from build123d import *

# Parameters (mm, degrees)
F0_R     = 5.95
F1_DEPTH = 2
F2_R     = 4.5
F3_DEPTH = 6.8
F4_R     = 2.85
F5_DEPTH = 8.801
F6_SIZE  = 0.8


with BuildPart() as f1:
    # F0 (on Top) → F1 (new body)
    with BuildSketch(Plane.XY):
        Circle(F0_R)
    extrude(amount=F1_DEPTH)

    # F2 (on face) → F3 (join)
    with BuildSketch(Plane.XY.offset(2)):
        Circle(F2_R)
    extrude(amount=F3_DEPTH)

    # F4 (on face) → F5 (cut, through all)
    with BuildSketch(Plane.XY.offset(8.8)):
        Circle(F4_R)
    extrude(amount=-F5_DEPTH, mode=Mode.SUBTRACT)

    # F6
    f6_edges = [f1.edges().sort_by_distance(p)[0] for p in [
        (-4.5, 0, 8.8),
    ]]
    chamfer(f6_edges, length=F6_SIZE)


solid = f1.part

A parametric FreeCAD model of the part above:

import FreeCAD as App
import Part
import Sketcher
from FreeCAD import Vector


def edges_at(feature, points):
    """Names of the edges that pass closest to the given points."""
    edges = feature.Shape.Edges
    near = lambda p: min(range(len(edges)), key=lambda i: edges[i].distToShape(Part.Vertex(*p))[0])
    return sorted({f"Edge{near(p) + 1}" for p in points})

doc = App.newDocument("Part")
body = doc.addObject("PartDesign::Body", "Body")

# Sketch on XY plane
sketch1 = body.newObject("Sketcher::SketchObject", "Sketch")
sketch1.AttachmentSupport = (doc.getObject("XY_Plane"), [""])
sketch1.MapMode = "FlatFace"
sketch1.addGeometry(Part.Circle(Vector(0, 0, 0), Vector(0, 0, 1), 5.95), False)
sketch1.addConstraint([
    Sketcher.Constraint("Coincident", 0, 3, -1, 1),
    Sketcher.Constraint("Diameter", 0, 11.9),
])
pad1 = body.newObject("PartDesign::Pad", "Pad")
pad1.Profile = sketch1
pad1.Length = 2

# Sketch on XY plane
sketch2 = body.newObject("Sketcher::SketchObject", "Sketch001")
sketch2.AttachmentSupport = (doc.getObject("XY_Plane"), [""])
sketch2.MapMode = "FlatFace"
sketch2.AttachmentOffset = App.Placement(Vector(0, 0, 2), App.Rotation())
sketch2.addGeometry(Part.Circle(Vector(0, 0, 0), Vector(0, 0, 1), 4.5), False)
sketch2.addConstraint([
    Sketcher.Constraint("Coincident", 0, 3, -1, 1),
    Sketcher.Constraint("Diameter", 0, 9.0),
])
pad2 = body.newObject("PartDesign::Pad", "Pad001")
pad2.Profile = sketch2
pad2.Length = 6.8

# Sketch on XY plane
sketch3 = body.newObject("Sketcher::SketchObject", "Sketch002")
sketch3.AttachmentSupport = (doc.getObject("XY_Plane"), [""])
sketch3.MapMode = "FlatFace"
sketch3.AttachmentOffset = App.Placement(Vector(0, 0, 8.8), App.Rotation())
sketch3.addGeometry(Part.Circle(Vector(0, 0, 0), Vector(0, 0, 1), 2.85), False)
sketch3.addConstraint([
    Sketcher.Constraint("Coincident", 0, 3, -1, 1),
    Sketcher.Constraint("Diameter", 0, 5.7),
])
pocket1 = body.newObject("PartDesign::Pocket", "Pocket")
pocket1.Profile = sketch3
pocket1.Type = "ThroughAll"
doc.recompute()

chamfer = body.newObject("PartDesign::Chamfer", "Chamfer")
chamfer.Base = (pocket1, edges_at(pocket1, [(-4.5, 0, 8.8)]))
chamfer.Size = 0.8

doc.recompute()
